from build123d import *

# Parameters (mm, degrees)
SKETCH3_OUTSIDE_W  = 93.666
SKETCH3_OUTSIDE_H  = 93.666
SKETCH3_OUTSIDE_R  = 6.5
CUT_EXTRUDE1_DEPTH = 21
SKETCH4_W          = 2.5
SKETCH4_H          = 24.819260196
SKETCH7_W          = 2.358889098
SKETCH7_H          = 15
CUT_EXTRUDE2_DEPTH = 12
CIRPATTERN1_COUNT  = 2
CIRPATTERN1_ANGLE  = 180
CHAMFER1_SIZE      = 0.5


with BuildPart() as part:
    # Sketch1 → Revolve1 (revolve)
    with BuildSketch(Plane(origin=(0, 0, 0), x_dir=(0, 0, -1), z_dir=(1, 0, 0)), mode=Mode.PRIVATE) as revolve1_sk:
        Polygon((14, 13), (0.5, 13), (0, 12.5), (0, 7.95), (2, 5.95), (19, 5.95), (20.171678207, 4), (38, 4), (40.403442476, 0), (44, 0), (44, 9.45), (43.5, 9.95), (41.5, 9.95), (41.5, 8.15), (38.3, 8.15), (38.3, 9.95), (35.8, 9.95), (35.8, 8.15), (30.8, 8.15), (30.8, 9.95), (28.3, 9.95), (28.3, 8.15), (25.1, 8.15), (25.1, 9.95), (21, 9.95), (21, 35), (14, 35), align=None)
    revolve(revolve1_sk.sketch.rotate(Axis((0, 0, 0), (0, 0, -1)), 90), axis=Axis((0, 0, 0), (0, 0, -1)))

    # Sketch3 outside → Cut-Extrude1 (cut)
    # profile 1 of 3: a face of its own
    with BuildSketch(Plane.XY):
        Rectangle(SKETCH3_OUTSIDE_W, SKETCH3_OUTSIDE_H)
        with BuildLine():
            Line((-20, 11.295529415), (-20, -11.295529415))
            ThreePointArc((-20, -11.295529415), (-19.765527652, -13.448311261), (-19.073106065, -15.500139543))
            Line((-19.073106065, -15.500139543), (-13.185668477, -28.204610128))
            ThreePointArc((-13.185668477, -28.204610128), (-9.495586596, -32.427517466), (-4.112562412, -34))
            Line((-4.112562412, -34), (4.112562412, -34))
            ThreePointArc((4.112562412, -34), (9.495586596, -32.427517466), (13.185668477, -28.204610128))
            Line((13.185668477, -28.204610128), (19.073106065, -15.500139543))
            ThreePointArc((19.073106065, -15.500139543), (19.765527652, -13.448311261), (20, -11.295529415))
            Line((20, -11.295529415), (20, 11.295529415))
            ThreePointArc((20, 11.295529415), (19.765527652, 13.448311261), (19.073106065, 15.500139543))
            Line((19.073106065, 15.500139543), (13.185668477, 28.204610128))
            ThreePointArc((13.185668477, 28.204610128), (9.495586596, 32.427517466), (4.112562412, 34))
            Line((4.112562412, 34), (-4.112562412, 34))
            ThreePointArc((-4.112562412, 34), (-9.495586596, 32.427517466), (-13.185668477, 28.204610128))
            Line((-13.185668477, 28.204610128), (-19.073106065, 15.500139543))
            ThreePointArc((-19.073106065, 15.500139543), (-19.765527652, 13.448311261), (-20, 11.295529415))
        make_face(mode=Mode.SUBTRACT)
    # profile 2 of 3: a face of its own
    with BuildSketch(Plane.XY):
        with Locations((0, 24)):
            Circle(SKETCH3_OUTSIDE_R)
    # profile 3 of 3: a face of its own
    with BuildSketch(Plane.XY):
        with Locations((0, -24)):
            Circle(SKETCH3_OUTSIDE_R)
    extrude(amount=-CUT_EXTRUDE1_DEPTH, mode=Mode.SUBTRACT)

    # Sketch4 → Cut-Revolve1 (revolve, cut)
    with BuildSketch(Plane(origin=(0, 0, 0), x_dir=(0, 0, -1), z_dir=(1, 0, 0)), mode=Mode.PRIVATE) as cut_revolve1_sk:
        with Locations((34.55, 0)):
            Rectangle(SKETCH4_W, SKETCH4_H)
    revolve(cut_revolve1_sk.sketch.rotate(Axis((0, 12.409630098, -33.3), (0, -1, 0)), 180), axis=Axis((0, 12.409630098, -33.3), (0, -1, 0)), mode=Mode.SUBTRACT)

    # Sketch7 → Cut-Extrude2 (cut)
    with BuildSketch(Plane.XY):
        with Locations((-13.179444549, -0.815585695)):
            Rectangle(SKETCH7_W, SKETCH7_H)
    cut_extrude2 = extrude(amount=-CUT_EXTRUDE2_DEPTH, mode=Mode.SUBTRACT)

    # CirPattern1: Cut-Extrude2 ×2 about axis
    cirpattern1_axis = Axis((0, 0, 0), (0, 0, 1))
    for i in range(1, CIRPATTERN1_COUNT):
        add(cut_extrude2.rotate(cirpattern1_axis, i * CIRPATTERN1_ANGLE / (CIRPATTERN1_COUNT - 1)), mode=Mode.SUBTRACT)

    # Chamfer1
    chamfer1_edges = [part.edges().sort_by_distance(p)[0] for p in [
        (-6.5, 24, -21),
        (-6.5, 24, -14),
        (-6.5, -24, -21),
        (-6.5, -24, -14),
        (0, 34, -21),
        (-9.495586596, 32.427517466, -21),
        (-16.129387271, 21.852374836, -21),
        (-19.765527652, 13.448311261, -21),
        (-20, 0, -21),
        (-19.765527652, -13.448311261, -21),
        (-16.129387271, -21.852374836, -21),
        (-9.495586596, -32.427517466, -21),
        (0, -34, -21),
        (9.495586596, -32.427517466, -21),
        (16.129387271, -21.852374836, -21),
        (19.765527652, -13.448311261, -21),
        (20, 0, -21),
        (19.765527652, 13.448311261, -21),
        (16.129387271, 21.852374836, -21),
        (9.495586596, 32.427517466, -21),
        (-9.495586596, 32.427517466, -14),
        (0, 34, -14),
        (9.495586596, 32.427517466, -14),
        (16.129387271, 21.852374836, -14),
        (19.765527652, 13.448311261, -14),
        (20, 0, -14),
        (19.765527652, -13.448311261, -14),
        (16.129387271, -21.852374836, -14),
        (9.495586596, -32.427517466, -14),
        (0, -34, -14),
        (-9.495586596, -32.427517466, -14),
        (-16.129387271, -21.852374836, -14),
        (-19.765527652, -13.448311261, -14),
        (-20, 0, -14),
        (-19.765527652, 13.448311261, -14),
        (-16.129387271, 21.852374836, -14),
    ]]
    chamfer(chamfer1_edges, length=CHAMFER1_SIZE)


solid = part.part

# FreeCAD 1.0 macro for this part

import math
import FreeCAD as App
import Part
import Sketcher

V = App.Vector
Q = App.Units.Quantity


def edges_at(feature, points):
    """Names of the edges that pass closest to the given points."""
    edges = feature.Shape.Edges
    near = lambda p: min(range(len(edges)), key=lambda i: edges[i].distToShape(Part.Vertex(*p))[0])
    return sorted({f"Edge{near(p) + 1}" for p in points})

doc = App.newDocument("Part")
body = doc.addObject("PartDesign::Body", "Body")

sketch1 = doc.addObject("Sketcher::SketchObject", "Sketch")
body.addObject(sketch1)
sketch1.AttachmentSupport = (doc.YZ_Plane, [""])
sketch1.MapMode = "FlatFace"
sketch1.addGeometry([
    Part.LineSegment(V(13, -14, 0), V(13, -0.5, 0)),
    Part.LineSegment(V(13, -0.5, 0), V(12.5, 0, 0)),
    Part.LineSegment(V(12.5, 0, 0), V(8, 0, 0)),
    Part.LineSegment(V(8, 0, 0), V(6, -2, 0)),
    Part.LineSegment(V(6, -2, 0), V(6, -19, 0)),
    Part.LineSegment(V(6, -19, 0), V(4, -20.2, 0)),
    Part.LineSegment(V(4, -20.2, 0), V(4, -38, 0)),
    Part.LineSegment(V(4, -38, 0), V(0, -40.4, 0)),
    Part.LineSegment(V(0, -40.4, 0), V(0, -44, 0)),
    Part.LineSegment(V(0, -44, 0), V(9.4, -44, 0)),
    Part.LineSegment(V(9.4, -44, 0), V(9.9, -43.5, 0)),
    Part.LineSegment(V(9.9, -43.5, 0), V(9.9, -41.5, 0)),
    Part.LineSegment(V(9.9, -41.5, 0), V(8.2, -41.5, 0)),
    Part.LineSegment(V(8.2, -41.5, 0), V(8.2, -38.3, 0)),
    Part.LineSegment(V(8.2, -38.3, 0), V(9.9, -38.3, 0)),
    Part.LineSegment(V(9.9, -38.3, 0), V(9.9, -35.8, 0)),
    Part.LineSegment(V(9.9, -35.8, 0), V(8.2, -35.8, 0)),
    Part.LineSegment(V(8.2, -35.8, 0), V(8.2, -30.8, 0)),
    Part.LineSegment(V(8.2, -30.8, 0), V(9.9, -30.8, 0)),
    Part.LineSegment(V(9.9, -30.8, 0), V(9.9, -28.3, 0)),
    Part.LineSegment(V(9.9, -28.3, 0), V(8.2, -28.3, 0)),
    Part.LineSegment(V(8.2, -28.3, 0), V(8.2, -25.1, 0)),
    Part.LineSegment(V(8.2, -25.1, 0), V(9.9, -25.1, 0)),
    Part.LineSegment(V(9.9, -25.1, 0), V(9.9, -21, 0)),
    Part.LineSegment(V(9.9, -21, 0), V(35, -21, 0)),
    Part.LineSegment(V(35, -21, 0), V(35, -14, 0)),
    Part.LineSegment(V(35, -14, 0), V(13, -14, 0)),
], False)
sketch1.addConstraint([
    Sketcher.Constraint("Coincident", 0, 2, 1, 1),
    Sketcher.Constraint("Coincident", 1, 2, 2, 1),
    Sketcher.Constraint("Coincident", 2, 2, 3, 1),
    Sketcher.Constraint("Coincident", 3, 2, 4, 1),
    Sketcher.Constraint("Coincident", 4, 2, 5, 1),
    Sketcher.Constraint("Coincident", 5, 2, 6, 1),
    Sketcher.Constraint("Coincident", 6, 2, 7, 1),
    Sketcher.Constraint("Coincident", 7, 2, 8, 1),
    Sketcher.Constraint("Coincident", 8, 2, 9, 1),
    Sketcher.Constraint("Coincident", 9, 2, 10, 1),
    Sketcher.Constraint("Coincident", 10, 2, 11, 1),
    Sketcher.Constraint("Coincident", 11, 2, 12, 1),
    Sketcher.Constraint("Coincident", 12, 2, 13, 1),
    Sketcher.Constraint("Coincident", 13, 2, 14, 1),
    Sketcher.Constraint("Coincident", 14, 2, 15, 1),
    Sketcher.Constraint("Coincident", 15, 2, 16, 1),
    Sketcher.Constraint("Coincident", 16, 2, 17, 1),
    Sketcher.Constraint("Coincident", 17, 2, 18, 1),
    Sketcher.Constraint("Coincident", 18, 2, 19, 1),
    Sketcher.Constraint("Coincident", 19, 2, 20, 1),
    Sketcher.Constraint("Coincident", 20, 2, 21, 1),
    Sketcher.Constraint("Coincident", 21, 2, 22, 1),
    Sketcher.Constraint("Coincident", 22, 2, 23, 1),
    Sketcher.Constraint("Coincident", 23, 2, 24, 1),
    Sketcher.Constraint("Coincident", 24, 2, 25, 1),
    Sketcher.Constraint("Coincident", 25, 2, 26, 1),
    Sketcher.Constraint("Coincident", 26, 2, 0, 1),
    Sketcher.Constraint("Vertical", 0),
    Sketcher.Constraint("Horizontal", 2),
    Sketcher.Constraint("Vertical", 4),
    Sketcher.Constraint("Vertical", 6),
    Sketcher.Constraint("Vertical", 8),
    Sketcher.Constraint("Horizontal", 9),
    Sketcher.Constraint("Vertical", 11),
    Sketcher.Constraint("Horizontal", 12),
    Sketcher.Constraint("Vertical", 13),
    Sketcher.Constraint("Horizontal", 14),
    Sketcher.Constraint("Vertical", 15),
    Sketcher.Constraint("Horizontal", 16),
    Sketcher.Constraint("Vertical", 17),
    Sketcher.Constraint("Horizontal", 18),
    Sketcher.Constraint("Vertical", 19),
    Sketcher.Constraint("Horizontal", 20),
    Sketcher.Constraint("Vertical", 21),
    Sketcher.Constraint("Horizontal", 22),
    Sketcher.Constraint("Vertical", 23),
    Sketcher.Constraint("Horizontal", 24),
    Sketcher.Constraint("Vertical", 25),
    Sketcher.Constraint("Horizontal", 26),
    Sketcher.Constraint("PointOnObject", 1, 2, -1),
    Sketcher.Constraint("PointOnObject", 7, 2, -2),
    Sketcher.Constraint("Perpendicular", 1, 3),
    Sketcher.Constraint("Parallel", 5, 7),
    Sketcher.Constraint("Parallel", 3, 10),
    Sketcher.Constraint("Vertical", 11, 2, 14, 2),
    Sketcher.Constraint("Vertical", 13, 2, 16, 2),
    Sketcher.Constraint("Vertical", 15, 2, 18, 2),
    Sketcher.Constraint("Vertical", 17, 2, 20, 2),
    Sketcher.Constraint("Vertical", 19, 2, 22, 2),
    Sketcher.Constraint("Equal", 15, 19),
    Sketcher.Constraint("Equal", 13, 21),
    Sketcher.Constraint("Equal", 1, 10),
    Sketcher.Constraint("DistanceX", 26, 2, 26, 1, 22.0),
    Sketcher.Constraint("DistanceY", 4, 2, 4, 1, 17.0),
    Sketcher.Constraint("DistanceY", 11, 1, 11, 2, 2.0),
    Sketcher.Constraint("DistanceY", 17, 1, 17, 2, 5.0),
    Sketcher.Constraint("DistanceY", 25, 1, 25, 2, 7.0),
    Sketcher.Constraint("Angle", 1, Q("135 deg")),
    Sketcher.Constraint("Angle", 5, Q("-149 deg")),
    Sketcher.Constraint("DistanceX", 12, 2, 12, 1, 1.8),
    Sketcher.Constraint("DistanceY", 0, 1, 0, 2, 13.5),
    Sketcher.Constraint("DistanceY", 13, 1, 13, 2, 3.2),
    Sketcher.Constraint("DistanceY", 15, 1, 15, 2, 2.5),
    Sketcher.Constraint("DistanceY", 23, 1, 23, 2, 4.1),
    Sketcher.Constraint("DistanceX", -1, 1, 0, 2, 13.0),
    Sketcher.Constraint("DistanceY", 3, 2, -1, 1, 2.0),
    Sketcher.Constraint("DistanceX", -1, 1, 5, 2, 4.0),
    Sketcher.Constraint("DistanceY", 6, 2, -1, 1, 38.0),
    Sketcher.Constraint("DistanceY", 8, 2, -1, 1, 44.0),
    Sketcher.Constraint("DistanceX", 4, 2, 23, 2, 4.0),
    Sketcher.Constraint("DistanceX", 2, 2, 2, 1, 4.55),
])
revolution = doc.addObject("PartDesign::Revolution", "Revolution")
body.addObject(revolution)
revolution.Profile = sketch1
revolution.ReferenceAxis = (sketch1, ["V_Axis"])
revolution.Angle = 360

sketch2 = doc.addObject("Sketcher::SketchObject", "Sketch001")
body.addObject(sketch2)
sketch2.AttachmentSupport = (doc.XY_Plane, [""])
sketch2.MapMode = "FlatFace"
sketch2.addGeometry([
    Part.LineSegment(V(-46.8, 46.8, 0), V(-46.8, -46.8, 0)),
    Part.LineSegment(V(-46.8, -46.8, 0), V(46.8, -46.8, 0)),
    Part.LineSegment(V(46.8, -46.8, 0), V(46.8, 46.8, 0)),
    Part.LineSegment(V(46.8, 46.8, 0), V(-46.8, 46.8, 0)),
    Part.LineSegment(V(-20, -11.3, 0), V(-20, 11.3, 0)),
    Part.ArcOfCircle(Part.Circle(V(-10, 11.3, 0), V(0, 0, 1), 10), math.radians(155), math.radians(180)),
    Part.LineSegment(V(-19.1, 15.5, 0), V(-13.2, 28.2, 0)),
    Part.ArcOfCircle(Part.Circle(V(-4.1, 24, 0), V(0, 0, 1), 10), math.radians(90), math.radians(155)),
    Part.LineSegment(V(-4.1, 34, 0), V(4.1, 34, 0)),
    Part.ArcOfCircle(Part.Circle(V(4.1, 24, 0), V(0, 0, 1), 10), math.radians(25), math.radians(90)),
    Part.LineSegment(V(13.2, 28.2, 0), V(19.1, 15.5, 0)),
    Part.ArcOfCircle(Part.Circle(V(10, 11.3, 0), V(0, 0, 1), 10), math.radians(0), math.radians(25)),
    Part.LineSegment(V(20, 11.3, 0), V(20, -11.3, 0)),
    Part.ArcOfCircle(Part.Circle(V(10, -11.3, 0), V(0, 0, 1), 10), math.radians(-25), math.radians(0)),
    Part.LineSegment(V(19.1, -15.5, 0), V(13.2, -28.2, 0)),
    Part.ArcOfCircle(Part.Circle(V(4.1, -24, 0), V(0, 0, 1), 10), math.radians(-90), math.radians(-25)),
    Part.LineSegment(V(4.1, -34, 0), V(-4.1, -34, 0)),
    Part.ArcOfCircle(Part.Circle(V(-4.1, -24, 0), V(0, 0, 1), 10), math.radians(-155), math.radians(-90)),
    Part.LineSegment(V(-13.2, -28.2, 0), V(-19.1, -15.5, 0)),
    Part.ArcOfCircle(Part.Circle(V(-10, -11.3, 0), V(0, 0, 1), 10), math.radians(180), math.radians(205)),
    Part.Circle(V(0, 24, 0), V(0, 0, 1), 6.5),
    Part.Circle(V(0, -24, 0), V(0, 0, 1), 6.5),
], False)
sketch2.addConstraint([
    Sketcher.Constraint("Coincident", 0, 2, 1, 1),
    Sketcher.Constraint("Coincident", 1, 2, 2, 1),
    Sketcher.Constraint("Coincident", 2, 2, 3, 1),
    Sketcher.Constraint("Coincident", 3, 2, 0, 1),
    Sketcher.Constraint("Tangent", 4, 2, 5, 2),
    Sketcher.Constraint("Tangent", 5, 1, 6, 1),
    Sketcher.Constraint("Tangent", 6, 2, 7, 2),
    Sketcher.Constraint("Tangent", 7, 1, 8, 1),
    Sketcher.Constraint("Tangent", 8, 2, 9, 2),
    Sketcher.Constraint("Tangent", 9, 1, 10, 1),
    Sketcher.Constraint("Tangent", 10, 2, 11, 2),
    Sketcher.Constraint("Tangent", 11, 1, 12, 1),
    Sketcher.Constraint("Tangent", 12, 2, 13, 2),
    Sketcher.Constraint("Tangent", 13, 1, 14, 1),
    Sketcher.Constraint("Tangent", 14, 2, 15, 2),
    Sketcher.Constraint("Tangent", 15, 1, 16, 1),
    Sketcher.Constraint("Tangent", 16, 2, 17, 2),
    Sketcher.Constraint("Tangent", 17, 1, 18, 1),
    Sketcher.Constraint("Tangent", 18, 2, 19, 2),
    Sketcher.Constraint("Tangent", 19, 1, 4, 1),
    Sketcher.Constraint("Vertical", 0),
    Sketcher.Constraint("Horizontal", 1),
    Sketcher.Constraint("Vertical", 2),
    Sketcher.Constraint("Horizontal", 3),
    Sketcher.Constraint("Vertical", 4),
    Sketcher.Constraint("Horizontal", 8),
    Sketcher.Constraint("Vertical", 12),
    Sketcher.Constraint("Horizontal", 16),
    Sketcher.Constraint("Equal", 5, 7),
    Sketcher.Constraint("Equal", 7, 9),
    Sketcher.Constraint("Equal", 9, 11),
    Sketcher.Constraint("Equal", 11, 13),
    Sketcher.Constraint("Equal", 13, 15),
    Sketcher.Constraint("Equal", 15, 17),
    Sketcher.Constraint("Equal", 17, 19),
    Sketcher.Constraint("Equal", 20, 21),
    Sketcher.Constraint("Symmetric", 5, 3, 13, 3, -1, 1),
    Sketcher.Constraint("Symmetric", 7, 3, 15, 3, -1, 1),
    Sketcher.Constraint("Symmetric", 20, 3, 21, 3, -1, 1),
    Sketcher.Constraint("Symmetric", 0, 2, 2, 2, -1, 1),
    Sketcher.Constraint("Symmetric", 9, 1, 17, 1, -1, 1),
    Sketcher.Constraint("Symmetric", 6, 2, 9, 1, -2),
    Sketcher.Constraint("PointOnObject", 20, 3, -2),
    Sketcher.Constraint("Horizontal", 9, 3, 20, 3),
    Sketcher.Constraint("Equal", 3, 0),
    Sketcher.Constraint("Diameter", 20, 13.0),
    Sketcher.Constraint("Radius", 5, 10.0),
    Sketcher.Constraint("DistanceX", 5, 3, -1, 1, 10.0),
    Sketcher.Constraint("DistanceY", -1, 1, 7, 3, 24.0),
    Sketcher.Constraint("DistanceX", 1, 1, 1, 2, 93.666),
    Sketcher.Constraint("DistanceY", 4, 1, 4, 2, 22.591059),
    Sketcher.Constraint("Distance", 6, 14.002339),
])
pocket1 = doc.addObject("PartDesign::Pocket", "Pocket")
body.addObject(pocket1)
pocket1.Profile = sketch2
pocket1.Length = 21

sketch3 = doc.addObject("Sketcher::SketchObject", "Sketch002")
body.addObject(sketch3)
sketch3.AttachmentSupport = (doc.YZ_Plane, [""])
sketch3.MapMode = "FlatFace"
sketch3.addGeometry([
    Part.LineSegment(V(12.4, -33.3, 0), V(-12.4, -33.3, 0)),
    Part.LineSegment(V(-12.4, -33.3, 0), V(-12.4, -35.8, 0)),
    Part.LineSegment(V(-12.4, -35.8, 0), V(12.4, -35.8, 0)),
    Part.LineSegment(V(12.4, -35.8, 0), V(12.4, -33.3, 0)),
], False)
sketch3.addGeometry(Part.LineSegment(V(12.4, -33.3, 0), V(-12.4, -33.3, 0)), True)
sketch3.addConstraint([
    Sketcher.Constraint("Coincident", 0, 2, 1, 1),
    Sketcher.Constraint("Coincident", 1, 2, 2, 1),
    Sketcher.Constraint("Coincident", 2, 2, 3, 1),
    Sketcher.Constraint("Coincident", 3, 2, 0, 1),
    Sketcher.Constraint("Horizontal", 0),
    Sketcher.Constraint("Vertical", 1),
    Sketcher.Constraint("Horizontal", 2),
    Sketcher.Constraint("Vertical", 3),
    Sketcher.Constraint("Horizontal", 4),
    Sketcher.Constraint("Coincident", 4, 1, 3, 2),
    Sketcher.Constraint("Vertical", 1, 2, 4, 2),
    Sketcher.Constraint("DistanceY", 1, 2, 1, 1, 2.5),
    Sketcher.Constraint("DistanceY", 0, 2, -1, 1, 33.3),
    Sketcher.Constraint("DistanceX", 0, 2, 0, 1, 24.81926),
    Sketcher.Constraint("DistanceX", 0, 2, -1, 1, 12.40963),
])
groove = doc.addObject("PartDesign::Groove", "Groove")
body.addObject(groove)
groove.Profile = sketch3
groove.ReferenceAxis = (sketch3, ["Axis0"])
groove.Angle = 360

sketch4 = doc.addObject("Sketcher::SketchObject", "Sketch003")
body.addObject(sketch4)
sketch4.AttachmentSupport = (doc.XY_Plane, [""])
sketch4.MapMode = "FlatFace"
sketch4.addGeometry([
    Part.LineSegment(V(-14.4, 6.7, 0), V(-14.4, -8.3, 0)),
    Part.LineSegment(V(-14.4, -8.3, 0), V(-12, -8.3, 0)),
    Part.LineSegment(V(-12, -8.3, 0), V(-12, 6.7, 0)),
    Part.LineSegment(V(-12, 6.7, 0), V(-14.4, 6.7, 0)),
], False)
sketch4.addConstraint([
    Sketcher.Constraint("Coincident", 0, 2, 1, 1),
    Sketcher.Constraint("Coincident", 1, 2, 2, 1),
    Sketcher.Constraint("Coincident", 2, 2, 3, 1),
    Sketcher.Constraint("Coincident", 3, 2, 0, 1),
    Sketcher.Constraint("Vertical", 0),
    Sketcher.Constraint("Horizontal", 1),
    Sketcher.Constraint("Vertical", 2),
    Sketcher.Constraint("Horizontal", 3),
    Sketcher.Constraint("DistanceY", 0, 2, 0, 1, 15.0),
    Sketcher.Constraint("DistanceX", 1, 2, -1, 1, 12.0),
    Sketcher.Constraint("DistanceX", 1, 1, 1, 2, 2.358889),
    Sketcher.Constraint("DistanceY", 0, 2, -1, 1, 8.315586),
])
pocket2 = doc.addObject("PartDesign::Pocket", "Pocket001")
body.addObject(pocket2)
pocket2.Profile = sketch4
pocket2.Length = 12
doc.recompute()

polarpattern = doc.addObject("PartDesign::PolarPattern", "PolarPattern")
body.addObject(polarpattern)
polarpattern.Originals = [pocket2]
polarpattern.Axis = (doc.Z_Axis, [""])
polarpattern.Angle = 360
polarpattern.Occurrences = 2
body.Tip = polarpattern
doc.recompute()

chamfer = doc.addObject("PartDesign::Chamfer", "Chamfer")
body.addObject(chamfer)
chamfer.Base = (polarpattern, edges_at(polarpattern, [
    (-6.5, 24, -21),
    (-6.5, 24, -14),
    (-6.5, -24, -21),
    (-6.5, -24, -14),
    (0, 34, -21),
    (-9.496, 32.428, -21),
    (-16.129, 21.852, -21),
    (-19.766, 13.448, -21),
    (-20, 0, -21),
    (-19.766, -13.448, -21),
    (-16.129, -21.852, -21),
    (-9.496, -32.428, -21),
    (0, -34, -21),
    (9.496, -32.428, -21),
    (16.129, -21.852, -21),
    (19.766, -13.448, -21),
    (20, 0, -21),
    (19.766, 13.448, -21),
    (16.129, 21.852, -21),
    (9.496, 32.428, -21),
    (-9.496, 32.428, -14),
    (0, 34, -14),
    (9.496, 32.428, -14),
    (16.129, 21.852, -14),
    (19.766, 13.448, -14),
    (20, 0, -14),
    (19.766, -13.448, -14),
    (16.129, -21.852, -14),
    (9.496, -32.428, -14),
    (0, -34, -14),
    (-9.496, -32.428, -14),
    (-16.129, -21.852, -14),
    (-19.766, -13.448, -14),
    (-20, 0, -14),
    (-19.766, 13.448, -14),
    (-16.129, 21.852, -14),
]))
chamfer.Size = 0.5

doc.recompute()
